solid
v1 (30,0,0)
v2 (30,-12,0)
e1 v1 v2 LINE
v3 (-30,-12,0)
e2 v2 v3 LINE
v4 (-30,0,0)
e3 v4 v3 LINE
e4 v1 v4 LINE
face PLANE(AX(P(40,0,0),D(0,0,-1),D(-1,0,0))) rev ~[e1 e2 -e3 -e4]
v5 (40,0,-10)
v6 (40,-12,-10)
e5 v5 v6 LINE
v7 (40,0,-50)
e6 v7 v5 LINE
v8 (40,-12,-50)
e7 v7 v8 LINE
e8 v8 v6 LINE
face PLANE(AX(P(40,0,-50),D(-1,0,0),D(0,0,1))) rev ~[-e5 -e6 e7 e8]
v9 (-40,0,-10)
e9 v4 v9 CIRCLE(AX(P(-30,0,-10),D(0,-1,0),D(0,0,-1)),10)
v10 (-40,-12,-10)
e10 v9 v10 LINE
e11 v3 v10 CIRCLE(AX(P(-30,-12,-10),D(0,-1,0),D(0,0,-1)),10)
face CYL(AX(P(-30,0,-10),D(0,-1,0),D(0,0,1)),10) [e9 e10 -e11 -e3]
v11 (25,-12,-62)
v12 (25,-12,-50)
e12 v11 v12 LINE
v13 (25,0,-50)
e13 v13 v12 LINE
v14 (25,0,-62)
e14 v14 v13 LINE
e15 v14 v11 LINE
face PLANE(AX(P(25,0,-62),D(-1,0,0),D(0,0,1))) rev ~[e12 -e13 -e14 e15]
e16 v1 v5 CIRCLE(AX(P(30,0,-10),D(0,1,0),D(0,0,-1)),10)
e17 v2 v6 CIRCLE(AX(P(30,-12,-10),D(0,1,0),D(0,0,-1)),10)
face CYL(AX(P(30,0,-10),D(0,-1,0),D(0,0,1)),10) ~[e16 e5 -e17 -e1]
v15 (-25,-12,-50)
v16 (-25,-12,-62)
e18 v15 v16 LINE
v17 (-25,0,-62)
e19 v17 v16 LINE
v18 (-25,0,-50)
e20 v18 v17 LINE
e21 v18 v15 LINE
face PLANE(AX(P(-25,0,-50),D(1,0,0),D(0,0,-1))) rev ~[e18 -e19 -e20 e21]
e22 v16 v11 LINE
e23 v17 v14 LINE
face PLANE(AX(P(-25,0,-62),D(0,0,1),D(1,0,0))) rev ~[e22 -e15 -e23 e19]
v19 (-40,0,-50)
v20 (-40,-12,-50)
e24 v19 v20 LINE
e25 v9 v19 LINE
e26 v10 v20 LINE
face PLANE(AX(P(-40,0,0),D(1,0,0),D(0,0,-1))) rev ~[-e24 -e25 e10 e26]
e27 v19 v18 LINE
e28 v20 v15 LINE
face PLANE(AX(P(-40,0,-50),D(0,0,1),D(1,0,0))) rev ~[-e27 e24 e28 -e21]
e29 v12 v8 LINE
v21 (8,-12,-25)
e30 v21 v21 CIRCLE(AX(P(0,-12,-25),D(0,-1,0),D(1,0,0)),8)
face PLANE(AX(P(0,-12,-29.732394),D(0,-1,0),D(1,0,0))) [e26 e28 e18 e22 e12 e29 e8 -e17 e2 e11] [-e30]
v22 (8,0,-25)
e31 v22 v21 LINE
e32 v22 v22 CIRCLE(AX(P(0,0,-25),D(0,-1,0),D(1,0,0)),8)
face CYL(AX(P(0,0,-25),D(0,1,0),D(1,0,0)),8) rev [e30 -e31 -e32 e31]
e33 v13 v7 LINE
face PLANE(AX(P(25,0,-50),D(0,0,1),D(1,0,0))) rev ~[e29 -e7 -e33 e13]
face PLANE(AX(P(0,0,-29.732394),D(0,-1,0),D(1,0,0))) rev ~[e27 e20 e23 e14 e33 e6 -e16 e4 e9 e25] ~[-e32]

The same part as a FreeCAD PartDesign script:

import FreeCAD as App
import Part
import Sketcher

V = App.Vector


def edges_at(feature, points):
    """Names of the edges that pass closest to the given points."""
    edges = feature.Shape.Edges
    near = lambda p: min(range(len(edges)), key=lambda i: edges[i].distToShape(Part.Vertex(*p))[0])
    return sorted({f"Edge{near(p) + 1}" for p in points})


def add_polygon(sketch, points):
    """Adds a closed chain of lines whose ends are joined by coincident constraints."""
    first, n = sketch.GeometryCount, len(points)
    for a, b in zip(points, points[1:] + points[:1]):
        sketch.addGeometry(Part.LineSegment(App.Vector(*a, 0), App.Vector(*b, 0)), False)
    for i in range(n):
        sketch.addConstraint(Sketcher.Constraint("Coincident", first + i, 2, first + (i + 1) % n, 1))

doc = App.newDocument("Part")
body = doc.addObject("PartDesign::Body", "Body")

# Sketch on XZ plane
sketch1 = doc.addObject("Sketcher::SketchObject", "Sketch")
body.addObject(sketch1)
sketch1.AttachmentSupport = (doc.XZ_Plane, [""])
sketch1.MapMode = "FlatFace"
add_polygon(sketch1, [(40, 0), (-40, 0), (-40, -50), (-25, -50), (-25, -62), (25, -62), (25, -50), (40, -50)])  # lines 0-7
sketch1.addGeometry(Part.Circle(V(0, -25, 0), V(0, 0, 1), 8), False)  # 8
sketch1.addConstraint([
    Sketcher.Constraint("Horizontal", 0),
    Sketcher.Constraint("Vertical", 1),
    Sketcher.Constraint("Horizontal", 2),
    Sketcher.Constraint("Vertical", 3),
    Sketcher.Constraint("Horizontal", 4),
    Sketcher.Constraint("Vertical", 5),
    Sketcher.Constraint("Horizontal", 6),
    Sketcher.Constraint("Vertical", 7),
    Sketcher.Constraint("Symmetric", 0, 2, 7, 2, -1, 1),
    Sketcher.Constraint("Symmetric", 2, 2, 5, 2, -2),
    Sketcher.Constraint("PointOnObject", 8, 3, -2),
    Sketcher.Constraint("Equal", 4, 1),
    Sketcher.Constraint("Diameter", 8, 16.0),
    Sketcher.Constraint("DistanceX", 0, 2, 0, 1, 80.0),
    Sketcher.Constraint("DistanceX", 2, 1, 2, 2, 15.0),
    Sketcher.Constraint("DistanceY", 3, 2, 3, 1, 12.0),
    Sketcher.Constraint("DistanceY", 8, 3, -1, 1, 25.0),
])
pad1 = doc.addObject("PartDesign::Pad", "Pad")
body.addObject(pad1)
pad1.Profile = sketch1
pad1.Length = 12
doc.recompute()

fillet = doc.addObject("PartDesign::Fillet", "Fillet")
body.addObject(fillet)
fillet.Base = (pad1, edges_at(pad1, [(-40, -6, 0), (40, -6, 0)]))
fillet.Radius = 10

doc.recompute()
